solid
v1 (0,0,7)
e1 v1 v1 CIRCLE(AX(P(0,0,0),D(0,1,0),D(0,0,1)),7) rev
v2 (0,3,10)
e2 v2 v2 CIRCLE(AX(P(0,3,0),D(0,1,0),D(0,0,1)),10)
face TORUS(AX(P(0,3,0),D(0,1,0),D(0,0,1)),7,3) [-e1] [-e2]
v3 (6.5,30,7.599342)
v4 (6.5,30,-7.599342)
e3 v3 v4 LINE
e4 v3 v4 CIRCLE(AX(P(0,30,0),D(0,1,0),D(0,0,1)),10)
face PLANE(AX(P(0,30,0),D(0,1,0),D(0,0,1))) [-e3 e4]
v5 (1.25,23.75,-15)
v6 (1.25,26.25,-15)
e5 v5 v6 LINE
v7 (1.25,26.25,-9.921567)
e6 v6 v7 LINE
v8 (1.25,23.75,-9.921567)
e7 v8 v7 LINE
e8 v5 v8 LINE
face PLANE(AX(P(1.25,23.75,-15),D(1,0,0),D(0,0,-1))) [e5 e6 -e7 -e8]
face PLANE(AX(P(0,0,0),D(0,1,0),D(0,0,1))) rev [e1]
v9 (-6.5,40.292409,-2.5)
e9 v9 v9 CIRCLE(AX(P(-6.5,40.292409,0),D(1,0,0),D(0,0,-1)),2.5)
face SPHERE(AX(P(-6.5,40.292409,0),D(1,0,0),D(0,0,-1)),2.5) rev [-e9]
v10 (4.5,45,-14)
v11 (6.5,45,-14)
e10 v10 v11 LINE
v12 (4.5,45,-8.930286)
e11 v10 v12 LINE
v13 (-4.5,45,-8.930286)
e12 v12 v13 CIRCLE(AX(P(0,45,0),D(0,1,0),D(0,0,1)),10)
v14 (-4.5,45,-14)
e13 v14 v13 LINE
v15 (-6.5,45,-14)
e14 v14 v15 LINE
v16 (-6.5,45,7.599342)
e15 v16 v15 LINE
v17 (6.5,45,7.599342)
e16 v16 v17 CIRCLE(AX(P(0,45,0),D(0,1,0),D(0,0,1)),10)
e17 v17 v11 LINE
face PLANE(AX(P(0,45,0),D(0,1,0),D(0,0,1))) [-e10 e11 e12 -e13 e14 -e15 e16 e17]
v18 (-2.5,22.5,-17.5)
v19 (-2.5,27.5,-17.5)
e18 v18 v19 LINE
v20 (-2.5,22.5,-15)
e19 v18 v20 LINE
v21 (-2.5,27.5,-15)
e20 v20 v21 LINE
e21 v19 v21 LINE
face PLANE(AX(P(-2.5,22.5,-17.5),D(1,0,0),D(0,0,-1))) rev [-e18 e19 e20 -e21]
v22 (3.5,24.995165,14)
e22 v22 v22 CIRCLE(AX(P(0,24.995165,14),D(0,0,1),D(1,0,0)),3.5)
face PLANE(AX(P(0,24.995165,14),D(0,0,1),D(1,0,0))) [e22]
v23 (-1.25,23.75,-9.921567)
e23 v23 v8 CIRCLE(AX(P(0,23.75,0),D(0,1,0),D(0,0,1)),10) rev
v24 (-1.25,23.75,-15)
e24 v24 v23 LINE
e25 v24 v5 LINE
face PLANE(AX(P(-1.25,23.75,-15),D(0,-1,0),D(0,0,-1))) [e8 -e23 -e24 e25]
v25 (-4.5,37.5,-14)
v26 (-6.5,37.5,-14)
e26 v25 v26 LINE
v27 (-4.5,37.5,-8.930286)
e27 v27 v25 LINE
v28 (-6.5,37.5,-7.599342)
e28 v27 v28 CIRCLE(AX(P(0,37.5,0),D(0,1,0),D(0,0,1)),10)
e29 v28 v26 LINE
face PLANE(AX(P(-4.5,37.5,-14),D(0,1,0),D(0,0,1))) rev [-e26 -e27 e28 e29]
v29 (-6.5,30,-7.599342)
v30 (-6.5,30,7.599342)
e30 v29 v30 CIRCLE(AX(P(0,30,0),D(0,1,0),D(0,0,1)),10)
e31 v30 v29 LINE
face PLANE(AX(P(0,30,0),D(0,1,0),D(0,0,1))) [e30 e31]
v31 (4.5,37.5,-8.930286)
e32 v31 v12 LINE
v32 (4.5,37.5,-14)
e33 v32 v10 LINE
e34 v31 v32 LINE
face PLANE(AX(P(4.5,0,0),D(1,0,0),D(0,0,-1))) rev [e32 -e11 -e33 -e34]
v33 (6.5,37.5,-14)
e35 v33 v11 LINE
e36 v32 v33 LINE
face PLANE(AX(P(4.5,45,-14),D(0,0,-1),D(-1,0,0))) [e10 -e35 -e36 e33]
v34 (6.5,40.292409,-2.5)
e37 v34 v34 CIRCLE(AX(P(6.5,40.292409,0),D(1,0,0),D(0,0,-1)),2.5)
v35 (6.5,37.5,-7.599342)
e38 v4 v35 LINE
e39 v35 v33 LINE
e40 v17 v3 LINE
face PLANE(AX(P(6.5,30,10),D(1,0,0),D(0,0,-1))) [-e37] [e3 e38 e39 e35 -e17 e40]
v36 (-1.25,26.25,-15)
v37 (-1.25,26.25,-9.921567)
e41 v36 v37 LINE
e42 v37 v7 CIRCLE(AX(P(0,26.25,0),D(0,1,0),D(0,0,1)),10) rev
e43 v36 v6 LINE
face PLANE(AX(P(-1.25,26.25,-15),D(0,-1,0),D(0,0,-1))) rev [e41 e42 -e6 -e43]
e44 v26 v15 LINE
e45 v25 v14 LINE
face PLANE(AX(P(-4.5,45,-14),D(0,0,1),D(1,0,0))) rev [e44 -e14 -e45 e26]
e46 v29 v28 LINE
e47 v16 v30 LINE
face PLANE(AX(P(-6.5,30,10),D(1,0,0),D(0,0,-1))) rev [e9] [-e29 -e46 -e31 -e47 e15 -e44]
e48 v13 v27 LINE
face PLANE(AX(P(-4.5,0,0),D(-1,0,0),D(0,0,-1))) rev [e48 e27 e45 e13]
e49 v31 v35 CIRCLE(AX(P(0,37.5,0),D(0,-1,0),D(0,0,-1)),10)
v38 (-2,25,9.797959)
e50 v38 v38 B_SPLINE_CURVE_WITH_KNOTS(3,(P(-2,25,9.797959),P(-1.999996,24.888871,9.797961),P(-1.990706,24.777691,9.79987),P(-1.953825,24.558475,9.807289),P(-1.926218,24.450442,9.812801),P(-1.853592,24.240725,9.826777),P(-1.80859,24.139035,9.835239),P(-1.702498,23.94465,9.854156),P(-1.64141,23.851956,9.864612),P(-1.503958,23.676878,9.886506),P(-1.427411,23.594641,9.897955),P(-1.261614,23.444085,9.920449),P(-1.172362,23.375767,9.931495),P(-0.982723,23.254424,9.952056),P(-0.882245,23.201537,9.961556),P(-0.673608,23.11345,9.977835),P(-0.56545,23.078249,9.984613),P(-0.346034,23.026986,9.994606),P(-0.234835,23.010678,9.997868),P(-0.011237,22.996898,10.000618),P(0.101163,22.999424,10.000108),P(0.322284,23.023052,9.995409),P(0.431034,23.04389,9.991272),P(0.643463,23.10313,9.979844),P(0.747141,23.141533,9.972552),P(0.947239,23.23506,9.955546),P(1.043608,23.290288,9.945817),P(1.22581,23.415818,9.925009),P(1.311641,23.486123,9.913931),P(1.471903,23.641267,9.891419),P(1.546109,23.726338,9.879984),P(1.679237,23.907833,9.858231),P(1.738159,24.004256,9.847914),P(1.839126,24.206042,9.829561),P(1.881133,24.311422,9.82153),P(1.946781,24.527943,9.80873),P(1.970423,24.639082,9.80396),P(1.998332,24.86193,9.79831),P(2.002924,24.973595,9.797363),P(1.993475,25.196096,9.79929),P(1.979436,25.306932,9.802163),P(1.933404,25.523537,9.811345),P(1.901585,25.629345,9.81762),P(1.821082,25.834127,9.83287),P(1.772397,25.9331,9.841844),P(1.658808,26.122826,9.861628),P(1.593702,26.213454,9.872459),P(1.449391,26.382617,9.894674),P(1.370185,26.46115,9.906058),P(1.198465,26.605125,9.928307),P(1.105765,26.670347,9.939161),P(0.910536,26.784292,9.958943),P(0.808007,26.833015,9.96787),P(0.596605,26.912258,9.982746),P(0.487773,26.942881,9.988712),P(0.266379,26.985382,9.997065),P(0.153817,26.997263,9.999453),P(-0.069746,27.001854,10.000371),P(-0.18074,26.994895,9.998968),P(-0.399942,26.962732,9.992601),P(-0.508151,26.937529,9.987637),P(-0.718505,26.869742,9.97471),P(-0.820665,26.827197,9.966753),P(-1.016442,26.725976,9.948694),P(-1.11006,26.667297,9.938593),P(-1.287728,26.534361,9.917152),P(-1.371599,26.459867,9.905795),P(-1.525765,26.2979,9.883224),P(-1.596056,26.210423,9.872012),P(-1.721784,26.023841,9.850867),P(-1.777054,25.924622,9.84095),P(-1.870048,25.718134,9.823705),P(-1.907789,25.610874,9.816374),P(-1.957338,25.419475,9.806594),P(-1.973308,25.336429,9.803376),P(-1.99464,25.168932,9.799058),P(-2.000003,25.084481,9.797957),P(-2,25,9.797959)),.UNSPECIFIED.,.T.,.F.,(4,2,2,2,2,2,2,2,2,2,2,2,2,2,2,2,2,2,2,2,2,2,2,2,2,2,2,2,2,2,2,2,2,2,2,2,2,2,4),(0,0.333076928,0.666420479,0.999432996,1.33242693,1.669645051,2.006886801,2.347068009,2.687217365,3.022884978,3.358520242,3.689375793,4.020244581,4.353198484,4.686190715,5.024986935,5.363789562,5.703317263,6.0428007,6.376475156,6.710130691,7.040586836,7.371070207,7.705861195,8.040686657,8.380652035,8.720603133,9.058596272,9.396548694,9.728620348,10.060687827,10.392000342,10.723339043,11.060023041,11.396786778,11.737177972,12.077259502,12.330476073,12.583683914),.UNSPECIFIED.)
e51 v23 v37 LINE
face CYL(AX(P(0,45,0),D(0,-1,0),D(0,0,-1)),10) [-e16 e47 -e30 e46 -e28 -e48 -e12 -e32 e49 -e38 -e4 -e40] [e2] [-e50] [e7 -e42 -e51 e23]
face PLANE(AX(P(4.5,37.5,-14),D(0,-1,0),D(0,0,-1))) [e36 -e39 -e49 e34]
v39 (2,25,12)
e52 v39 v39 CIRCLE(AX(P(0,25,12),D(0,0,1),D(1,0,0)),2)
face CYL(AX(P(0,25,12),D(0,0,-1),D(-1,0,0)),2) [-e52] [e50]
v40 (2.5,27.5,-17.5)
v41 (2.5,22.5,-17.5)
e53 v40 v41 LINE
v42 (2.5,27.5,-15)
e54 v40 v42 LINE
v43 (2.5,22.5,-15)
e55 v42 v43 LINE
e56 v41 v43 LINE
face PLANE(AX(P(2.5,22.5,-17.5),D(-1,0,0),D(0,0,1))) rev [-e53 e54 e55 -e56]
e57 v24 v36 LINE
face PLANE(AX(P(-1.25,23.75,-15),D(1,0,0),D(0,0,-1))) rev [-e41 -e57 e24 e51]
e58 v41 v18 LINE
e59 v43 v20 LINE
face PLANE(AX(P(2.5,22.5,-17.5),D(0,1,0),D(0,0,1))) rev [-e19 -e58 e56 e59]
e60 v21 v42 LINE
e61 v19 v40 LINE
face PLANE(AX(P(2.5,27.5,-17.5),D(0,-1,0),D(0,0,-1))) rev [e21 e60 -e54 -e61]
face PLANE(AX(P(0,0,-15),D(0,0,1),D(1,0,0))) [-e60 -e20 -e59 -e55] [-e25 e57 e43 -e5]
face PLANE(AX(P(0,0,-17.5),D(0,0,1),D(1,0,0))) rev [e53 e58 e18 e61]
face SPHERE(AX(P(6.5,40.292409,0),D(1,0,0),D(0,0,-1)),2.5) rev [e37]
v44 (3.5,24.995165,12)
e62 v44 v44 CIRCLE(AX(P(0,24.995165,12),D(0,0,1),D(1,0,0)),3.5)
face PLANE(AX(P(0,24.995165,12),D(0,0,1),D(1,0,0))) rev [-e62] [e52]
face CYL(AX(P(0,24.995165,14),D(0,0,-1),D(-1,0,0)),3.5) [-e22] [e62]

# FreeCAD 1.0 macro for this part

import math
import FreeCAD as App
import Part
import Sketcher
from FreeCAD import Vector
Q = App.Units.Quantity


def edges_at(feature, points):
    """Names of the edges that pass closest to the given points."""
    edges = feature.Shape.Edges
    near = lambda p: min(range(len(edges)), key=lambda i: edges[i].distToShape(Part.Vertex(*p))[0])
    return sorted({f"Edge{near(p) + 1}" for p in points})


def add_polygon(sketch, points):
    """Adds a closed chain of lines whose ends are joined by coincident constraints."""
    first, n = sketch.GeometryCount, len(points)
    for a, b in zip(points, points[1:] + points[:1]):
        sketch.addGeometry(Part.LineSegment(App.Vector(*a, 0), App.Vector(*b, 0)), False)
    for i in range(n):
        sketch.addConstraint(Sketcher.Constraint("Coincident", first + i, 2, first + (i + 1) % n, 1))

doc = App.newDocument("Part")
body = doc.addObject("PartDesign::Body", "Body")

# Sketch on XZ plane
sketch1 = body.newObject("Sketcher::SketchObject", "Sketch")
sketch1.AttachmentSupport = (doc.getObject("XZ_Plane"), [""])
sketch1.MapMode = "FlatFace"
sketch1.addGeometry(Part.Circle(Vector(0, 0, 0), Vector(0, 0, 1), 10), False)
sketch1.addConstraint([
    Sketcher.Constraint("Coincident", 0, 3, -1, 1),
    Sketcher.Constraint("Diameter", 0, Q("20 mm")),
])
pad1 = body.newObject("PartDesign::Pad", "Pad")
pad1.Profile = sketch1
pad1.Length = 45
pad1.Reversed = True

# Sketch on XZ plane
sketch2 = body.newObject("Sketcher::SketchObject", "Sketch001")
sketch2.AttachmentSupport = (doc.getObject("XZ_Plane"), [""])
sketch2.MapMode = "FlatFace"
sketch2.AttachmentOffset = App.Placement(Vector(0, 0, -45), App.Rotation())
add_polygon(sketch2, [(-16.315, -16.315), (-16.315, 16.315), (16.315, 16.315), (16.315, -16.315)])  # lines 0-3
add_polygon(sketch2, [(6.5, 10), (-6.5, 10), (-6.5, -10), (6.5, -10)])  # lines 4-7
sketch2.addConstraint([
    Sketcher.Constraint("Vertical", 0),
    Sketcher.Constraint("Horizontal", 1),
    Sketcher.Constraint("Vertical", 2),
    Sketcher.Constraint("Horizontal", 3),
    Sketcher.Constraint("Horizontal", 4),
    Sketcher.Constraint("Vertical", 5),
    Sketcher.Constraint("Horizontal", 6),
    Sketcher.Constraint("Vertical", 7),
    Sketcher.Constraint("Symmetric", 0, 2, 2, 2, -1, 1),
    Sketcher.Constraint("Symmetric", 4, 2, 6, 2, -1, 1),
    Sketcher.Constraint("Equal", 3, 0),
    Sketcher.Constraint("DistanceX", 4, 2, 4, 1, Q("13 mm")),
    Sketcher.Constraint("DistanceY", 5, 2, 5, 1, Q("20 mm")),
    Sketcher.Constraint("DistanceX", 1, 1, 1, 2, Q("32.63 mm")),
])
pocket1 = body.newObject("PartDesign::Pocket", "Pocket")
pocket1.Profile = sketch2
pocket1.Length = 15
pocket1.Reversed = True

# Sketch on YZ plane
sketch3 = body.newObject("Sketcher::SketchObject", "Sketch002")
sketch3.AttachmentSupport = (doc.getObject("YZ_Plane"), [""])
sketch3.MapMode = "FlatFace"
sketch3.AttachmentOffset = App.Placement(Vector(0, 0, -6.5), App.Rotation())
sketch3.addGeometry([
    Part.LineSegment(Vector(37.792409, 0, 0), Vector(42.792409, 0, 0)),
    Part.ArcOfCircle(Part.Circle(Vector(40.292409, 0, 0), Vector(0, 0, 1), 2.5), math.radians(180), math.radians(360)),
], False)
sketch3.addConstraint([
    Sketcher.Constraint("Coincident", 0, 1, 1, 1),
    Sketcher.Constraint("Coincident", 1, 2, 0, 2),
    Sketcher.Constraint("Horizontal", 0),
    Sketcher.Constraint("PointOnObject", 1, 3, -1),
    Sketcher.Constraint("PointOnObject", 0, 1, -1),
    Sketcher.Constraint("Radius", 1, Q("2.5 mm")),
    Sketcher.Constraint("DistanceX", -1, 1, 1, 3, Q("40.292409 mm")),
])
groove = body.newObject("PartDesign::Groove", "Groove")
groove.Profile = sketch3
groove.ReferenceAxis = (sketch3, ["H_Axis"])
groove.Angle = 360
doc.recompute()

mirrored = body.newObject("PartDesign::Mirrored", "Mirrored")
mirrored.Originals = [groove]
mirrored.MirrorPlane = (doc.getObject("YZ_Plane"), [""])
body.Tip = mirrored
doc.recompute()

fillet = body.newObject("PartDesign::Fillet", "Fillet")
fillet.Base = (mirrored, edges_at(mirrored, [(-10, 0, 0)]))
fillet.Radius = 3

# Sketch on XY plane
sketch4 = body.newObject("Sketcher::SketchObject", "Sketch003")
sketch4.AttachmentSupport = (doc.getObject("XY_Plane"), [""])
sketch4.MapMode = "FlatFace"
sketch4.AttachmentOffset = App.Placement(Vector(0, 0, -15), App.Rotation())
add_polygon(sketch4, [(-1.25, 26.25), (-1.25, 23.75), (1.25, 23.75), (1.25, 26.25)])  # lines 0-3
sketch4.addConstraint([
    Sketcher.Constraint("Vertical", 0),
    Sketcher.Constraint("Horizontal", 1),
    Sketcher.Constraint("Vertical", 2),
    Sketcher.Constraint("Horizontal", 3),
    Sketcher.Constraint("Equal", 3, 0),
    Sketcher.Constraint("DistanceX", 1, 1, 1, 2, Q("2.5 mm")),
    Sketcher.Constraint("DistanceX", 0, 2, -1, 1, Q("1.25 mm")),
    Sketcher.Constraint("DistanceY", -1, 1, 0, 2, Q("23.75 mm")),
])
pad2 = body.newObject("PartDesign::Pad", "Pad001")
pad2.Profile = sketch4
pad2.Length = 5.078433

# Sketch on XY plane
sketch5 = body.newObject("Sketcher::SketchObject", "Sketch004")
sketch5.AttachmentSupport = (doc.getObject("XY_Plane"), [""])
sketch5.MapMode = "FlatFace"
sketch5.AttachmentOffset = App.Placement(Vector(0, 0, -15), App.Rotation())
add_polygon(sketch5, [(2.5, 27.5), (2.5, 22.5), (-2.5, 22.5), (-2.5, 27.5)])  # lines 0-3
sketch5.addConstraint([
    Sketcher.Constraint("Vertical", 0),
    Sketcher.Constraint("Horizontal", 1),
    Sketcher.Constraint("Vertical", 2),
    Sketcher.Constraint("Horizontal", 3),
    Sketcher.Constraint("Equal", 3, 0),
    Sketcher.Constraint("DistanceX", 1, 2, 1, 1, Q("5 mm")),
    Sketcher.Constraint("DistanceX", -1, 1, 0, 2, Q("2.5 mm")),
    Sketcher.Constraint("DistanceY", -1, 1, 0, 2, Q("22.5 mm")),
])
pad3 = body.newObject("PartDesign::Pad", "Pad002")
pad3.Profile = sketch5
pad3.Length = 2.5
pad3.Reversed = True

# Sketch on XY plane
sketch6 = body.newObject("Sketcher::SketchObject", "Sketch005")
sketch6.AttachmentSupport = (doc.getObject("XY_Plane"), [""])
sketch6.MapMode = "FlatFace"
sketch6.AttachmentOffset = App.Placement(Vector(0, 0, 9.797959), App.Rotation())
sketch6.addGeometry(Part.Circle(Vector(0, 25, 0), Vector(0, 0, 1), 2), False)
sketch6.addConstraint([
    Sketcher.Constraint("PointOnObject", 0, 3, -2),
    Sketcher.Constraint("Diameter", 0, Q("4 mm")),
    Sketcher.Constraint("DistanceY", -1, 1, 0, 3, Q("25 mm")),
])
pad4 = body.newObject("PartDesign::Pad", "Pad003")
pad4.Profile = sketch6
pad4.Length = 2.202041

# Sketch on XY plane
sketch7 = body.newObject("Sketcher::SketchObject", "Sketch006")
sketch7.AttachmentSupport = (doc.getObject("XY_Plane"), [""])
sketch7.MapMode = "FlatFace"
sketch7.AttachmentOffset = App.Placement(Vector(0, 0, 12), App.Rotation())
sketch7.addGeometry(Part.Circle(Vector(0, 24.995165, 0), Vector(0, 0, 1), 3.5), False)
sketch7.addConstraint([
    Sketcher.Constraint("PointOnObject", 0, 3, -2),
    Sketcher.Constraint("Diameter", 0, Q("7 mm")),
    Sketcher.Constraint("DistanceY", -1, 1, 0, 3, Q("24.995165 mm")),
])
pad5 = body.newObject("PartDesign::Pad", "Pad004")
pad5.Profile = sketch7
pad5.Length = 2

# Sketch on YZ plane
sketch8 = body.newObject("Sketcher::SketchObject", "Sketch007")
sketch8.AttachmentSupport = (doc.getObject("YZ_Plane"), [""])
sketch8.MapMode = "FlatFace"
sketch8.AttachmentOffset = App.Placement(Vector(0, 0, 6.5), App.Rotation())
add_polygon(sketch8, [(45, -7.599342), (37.5, -7.599342), (37.5, -14), (45, -14)])  # lines 0-3
sketch8.addConstraint([
    Sketcher.Constraint("Horizontal", 0),
    Sketcher.Constraint("Vertical", 1),
    Sketcher.Constraint("Horizontal", 2),
    Sketcher.Constraint("Vertical", 3),
    Sketcher.Constraint("DistanceX", 0, 2, 0, 1, Q("7.5 mm")),
    Sketcher.Constraint("DistanceY", 1, 2, -1, 1, Q("14 mm")),
    Sketcher.Constraint("DistanceX", -1, 1, 2, 2, Q("45 mm")),
    Sketcher.Constraint("DistanceY", 1, 2, 1, 1, Q("6.400658 mm")),
])
pad6 = body.newObject("PartDesign::Pad", "Pad005")
pad6.Profile = sketch8
pad6.Length = 2
pad6.Reversed = True
doc.recompute()

mirrored2 = body.newObject("PartDesign::Mirrored", "Mirrored001")
mirrored2.Originals = [pad6]
mirrored2.MirrorPlane = (doc.getObject("YZ_Plane"), [""])
body.Tip = mirrored2

doc.recompute()
